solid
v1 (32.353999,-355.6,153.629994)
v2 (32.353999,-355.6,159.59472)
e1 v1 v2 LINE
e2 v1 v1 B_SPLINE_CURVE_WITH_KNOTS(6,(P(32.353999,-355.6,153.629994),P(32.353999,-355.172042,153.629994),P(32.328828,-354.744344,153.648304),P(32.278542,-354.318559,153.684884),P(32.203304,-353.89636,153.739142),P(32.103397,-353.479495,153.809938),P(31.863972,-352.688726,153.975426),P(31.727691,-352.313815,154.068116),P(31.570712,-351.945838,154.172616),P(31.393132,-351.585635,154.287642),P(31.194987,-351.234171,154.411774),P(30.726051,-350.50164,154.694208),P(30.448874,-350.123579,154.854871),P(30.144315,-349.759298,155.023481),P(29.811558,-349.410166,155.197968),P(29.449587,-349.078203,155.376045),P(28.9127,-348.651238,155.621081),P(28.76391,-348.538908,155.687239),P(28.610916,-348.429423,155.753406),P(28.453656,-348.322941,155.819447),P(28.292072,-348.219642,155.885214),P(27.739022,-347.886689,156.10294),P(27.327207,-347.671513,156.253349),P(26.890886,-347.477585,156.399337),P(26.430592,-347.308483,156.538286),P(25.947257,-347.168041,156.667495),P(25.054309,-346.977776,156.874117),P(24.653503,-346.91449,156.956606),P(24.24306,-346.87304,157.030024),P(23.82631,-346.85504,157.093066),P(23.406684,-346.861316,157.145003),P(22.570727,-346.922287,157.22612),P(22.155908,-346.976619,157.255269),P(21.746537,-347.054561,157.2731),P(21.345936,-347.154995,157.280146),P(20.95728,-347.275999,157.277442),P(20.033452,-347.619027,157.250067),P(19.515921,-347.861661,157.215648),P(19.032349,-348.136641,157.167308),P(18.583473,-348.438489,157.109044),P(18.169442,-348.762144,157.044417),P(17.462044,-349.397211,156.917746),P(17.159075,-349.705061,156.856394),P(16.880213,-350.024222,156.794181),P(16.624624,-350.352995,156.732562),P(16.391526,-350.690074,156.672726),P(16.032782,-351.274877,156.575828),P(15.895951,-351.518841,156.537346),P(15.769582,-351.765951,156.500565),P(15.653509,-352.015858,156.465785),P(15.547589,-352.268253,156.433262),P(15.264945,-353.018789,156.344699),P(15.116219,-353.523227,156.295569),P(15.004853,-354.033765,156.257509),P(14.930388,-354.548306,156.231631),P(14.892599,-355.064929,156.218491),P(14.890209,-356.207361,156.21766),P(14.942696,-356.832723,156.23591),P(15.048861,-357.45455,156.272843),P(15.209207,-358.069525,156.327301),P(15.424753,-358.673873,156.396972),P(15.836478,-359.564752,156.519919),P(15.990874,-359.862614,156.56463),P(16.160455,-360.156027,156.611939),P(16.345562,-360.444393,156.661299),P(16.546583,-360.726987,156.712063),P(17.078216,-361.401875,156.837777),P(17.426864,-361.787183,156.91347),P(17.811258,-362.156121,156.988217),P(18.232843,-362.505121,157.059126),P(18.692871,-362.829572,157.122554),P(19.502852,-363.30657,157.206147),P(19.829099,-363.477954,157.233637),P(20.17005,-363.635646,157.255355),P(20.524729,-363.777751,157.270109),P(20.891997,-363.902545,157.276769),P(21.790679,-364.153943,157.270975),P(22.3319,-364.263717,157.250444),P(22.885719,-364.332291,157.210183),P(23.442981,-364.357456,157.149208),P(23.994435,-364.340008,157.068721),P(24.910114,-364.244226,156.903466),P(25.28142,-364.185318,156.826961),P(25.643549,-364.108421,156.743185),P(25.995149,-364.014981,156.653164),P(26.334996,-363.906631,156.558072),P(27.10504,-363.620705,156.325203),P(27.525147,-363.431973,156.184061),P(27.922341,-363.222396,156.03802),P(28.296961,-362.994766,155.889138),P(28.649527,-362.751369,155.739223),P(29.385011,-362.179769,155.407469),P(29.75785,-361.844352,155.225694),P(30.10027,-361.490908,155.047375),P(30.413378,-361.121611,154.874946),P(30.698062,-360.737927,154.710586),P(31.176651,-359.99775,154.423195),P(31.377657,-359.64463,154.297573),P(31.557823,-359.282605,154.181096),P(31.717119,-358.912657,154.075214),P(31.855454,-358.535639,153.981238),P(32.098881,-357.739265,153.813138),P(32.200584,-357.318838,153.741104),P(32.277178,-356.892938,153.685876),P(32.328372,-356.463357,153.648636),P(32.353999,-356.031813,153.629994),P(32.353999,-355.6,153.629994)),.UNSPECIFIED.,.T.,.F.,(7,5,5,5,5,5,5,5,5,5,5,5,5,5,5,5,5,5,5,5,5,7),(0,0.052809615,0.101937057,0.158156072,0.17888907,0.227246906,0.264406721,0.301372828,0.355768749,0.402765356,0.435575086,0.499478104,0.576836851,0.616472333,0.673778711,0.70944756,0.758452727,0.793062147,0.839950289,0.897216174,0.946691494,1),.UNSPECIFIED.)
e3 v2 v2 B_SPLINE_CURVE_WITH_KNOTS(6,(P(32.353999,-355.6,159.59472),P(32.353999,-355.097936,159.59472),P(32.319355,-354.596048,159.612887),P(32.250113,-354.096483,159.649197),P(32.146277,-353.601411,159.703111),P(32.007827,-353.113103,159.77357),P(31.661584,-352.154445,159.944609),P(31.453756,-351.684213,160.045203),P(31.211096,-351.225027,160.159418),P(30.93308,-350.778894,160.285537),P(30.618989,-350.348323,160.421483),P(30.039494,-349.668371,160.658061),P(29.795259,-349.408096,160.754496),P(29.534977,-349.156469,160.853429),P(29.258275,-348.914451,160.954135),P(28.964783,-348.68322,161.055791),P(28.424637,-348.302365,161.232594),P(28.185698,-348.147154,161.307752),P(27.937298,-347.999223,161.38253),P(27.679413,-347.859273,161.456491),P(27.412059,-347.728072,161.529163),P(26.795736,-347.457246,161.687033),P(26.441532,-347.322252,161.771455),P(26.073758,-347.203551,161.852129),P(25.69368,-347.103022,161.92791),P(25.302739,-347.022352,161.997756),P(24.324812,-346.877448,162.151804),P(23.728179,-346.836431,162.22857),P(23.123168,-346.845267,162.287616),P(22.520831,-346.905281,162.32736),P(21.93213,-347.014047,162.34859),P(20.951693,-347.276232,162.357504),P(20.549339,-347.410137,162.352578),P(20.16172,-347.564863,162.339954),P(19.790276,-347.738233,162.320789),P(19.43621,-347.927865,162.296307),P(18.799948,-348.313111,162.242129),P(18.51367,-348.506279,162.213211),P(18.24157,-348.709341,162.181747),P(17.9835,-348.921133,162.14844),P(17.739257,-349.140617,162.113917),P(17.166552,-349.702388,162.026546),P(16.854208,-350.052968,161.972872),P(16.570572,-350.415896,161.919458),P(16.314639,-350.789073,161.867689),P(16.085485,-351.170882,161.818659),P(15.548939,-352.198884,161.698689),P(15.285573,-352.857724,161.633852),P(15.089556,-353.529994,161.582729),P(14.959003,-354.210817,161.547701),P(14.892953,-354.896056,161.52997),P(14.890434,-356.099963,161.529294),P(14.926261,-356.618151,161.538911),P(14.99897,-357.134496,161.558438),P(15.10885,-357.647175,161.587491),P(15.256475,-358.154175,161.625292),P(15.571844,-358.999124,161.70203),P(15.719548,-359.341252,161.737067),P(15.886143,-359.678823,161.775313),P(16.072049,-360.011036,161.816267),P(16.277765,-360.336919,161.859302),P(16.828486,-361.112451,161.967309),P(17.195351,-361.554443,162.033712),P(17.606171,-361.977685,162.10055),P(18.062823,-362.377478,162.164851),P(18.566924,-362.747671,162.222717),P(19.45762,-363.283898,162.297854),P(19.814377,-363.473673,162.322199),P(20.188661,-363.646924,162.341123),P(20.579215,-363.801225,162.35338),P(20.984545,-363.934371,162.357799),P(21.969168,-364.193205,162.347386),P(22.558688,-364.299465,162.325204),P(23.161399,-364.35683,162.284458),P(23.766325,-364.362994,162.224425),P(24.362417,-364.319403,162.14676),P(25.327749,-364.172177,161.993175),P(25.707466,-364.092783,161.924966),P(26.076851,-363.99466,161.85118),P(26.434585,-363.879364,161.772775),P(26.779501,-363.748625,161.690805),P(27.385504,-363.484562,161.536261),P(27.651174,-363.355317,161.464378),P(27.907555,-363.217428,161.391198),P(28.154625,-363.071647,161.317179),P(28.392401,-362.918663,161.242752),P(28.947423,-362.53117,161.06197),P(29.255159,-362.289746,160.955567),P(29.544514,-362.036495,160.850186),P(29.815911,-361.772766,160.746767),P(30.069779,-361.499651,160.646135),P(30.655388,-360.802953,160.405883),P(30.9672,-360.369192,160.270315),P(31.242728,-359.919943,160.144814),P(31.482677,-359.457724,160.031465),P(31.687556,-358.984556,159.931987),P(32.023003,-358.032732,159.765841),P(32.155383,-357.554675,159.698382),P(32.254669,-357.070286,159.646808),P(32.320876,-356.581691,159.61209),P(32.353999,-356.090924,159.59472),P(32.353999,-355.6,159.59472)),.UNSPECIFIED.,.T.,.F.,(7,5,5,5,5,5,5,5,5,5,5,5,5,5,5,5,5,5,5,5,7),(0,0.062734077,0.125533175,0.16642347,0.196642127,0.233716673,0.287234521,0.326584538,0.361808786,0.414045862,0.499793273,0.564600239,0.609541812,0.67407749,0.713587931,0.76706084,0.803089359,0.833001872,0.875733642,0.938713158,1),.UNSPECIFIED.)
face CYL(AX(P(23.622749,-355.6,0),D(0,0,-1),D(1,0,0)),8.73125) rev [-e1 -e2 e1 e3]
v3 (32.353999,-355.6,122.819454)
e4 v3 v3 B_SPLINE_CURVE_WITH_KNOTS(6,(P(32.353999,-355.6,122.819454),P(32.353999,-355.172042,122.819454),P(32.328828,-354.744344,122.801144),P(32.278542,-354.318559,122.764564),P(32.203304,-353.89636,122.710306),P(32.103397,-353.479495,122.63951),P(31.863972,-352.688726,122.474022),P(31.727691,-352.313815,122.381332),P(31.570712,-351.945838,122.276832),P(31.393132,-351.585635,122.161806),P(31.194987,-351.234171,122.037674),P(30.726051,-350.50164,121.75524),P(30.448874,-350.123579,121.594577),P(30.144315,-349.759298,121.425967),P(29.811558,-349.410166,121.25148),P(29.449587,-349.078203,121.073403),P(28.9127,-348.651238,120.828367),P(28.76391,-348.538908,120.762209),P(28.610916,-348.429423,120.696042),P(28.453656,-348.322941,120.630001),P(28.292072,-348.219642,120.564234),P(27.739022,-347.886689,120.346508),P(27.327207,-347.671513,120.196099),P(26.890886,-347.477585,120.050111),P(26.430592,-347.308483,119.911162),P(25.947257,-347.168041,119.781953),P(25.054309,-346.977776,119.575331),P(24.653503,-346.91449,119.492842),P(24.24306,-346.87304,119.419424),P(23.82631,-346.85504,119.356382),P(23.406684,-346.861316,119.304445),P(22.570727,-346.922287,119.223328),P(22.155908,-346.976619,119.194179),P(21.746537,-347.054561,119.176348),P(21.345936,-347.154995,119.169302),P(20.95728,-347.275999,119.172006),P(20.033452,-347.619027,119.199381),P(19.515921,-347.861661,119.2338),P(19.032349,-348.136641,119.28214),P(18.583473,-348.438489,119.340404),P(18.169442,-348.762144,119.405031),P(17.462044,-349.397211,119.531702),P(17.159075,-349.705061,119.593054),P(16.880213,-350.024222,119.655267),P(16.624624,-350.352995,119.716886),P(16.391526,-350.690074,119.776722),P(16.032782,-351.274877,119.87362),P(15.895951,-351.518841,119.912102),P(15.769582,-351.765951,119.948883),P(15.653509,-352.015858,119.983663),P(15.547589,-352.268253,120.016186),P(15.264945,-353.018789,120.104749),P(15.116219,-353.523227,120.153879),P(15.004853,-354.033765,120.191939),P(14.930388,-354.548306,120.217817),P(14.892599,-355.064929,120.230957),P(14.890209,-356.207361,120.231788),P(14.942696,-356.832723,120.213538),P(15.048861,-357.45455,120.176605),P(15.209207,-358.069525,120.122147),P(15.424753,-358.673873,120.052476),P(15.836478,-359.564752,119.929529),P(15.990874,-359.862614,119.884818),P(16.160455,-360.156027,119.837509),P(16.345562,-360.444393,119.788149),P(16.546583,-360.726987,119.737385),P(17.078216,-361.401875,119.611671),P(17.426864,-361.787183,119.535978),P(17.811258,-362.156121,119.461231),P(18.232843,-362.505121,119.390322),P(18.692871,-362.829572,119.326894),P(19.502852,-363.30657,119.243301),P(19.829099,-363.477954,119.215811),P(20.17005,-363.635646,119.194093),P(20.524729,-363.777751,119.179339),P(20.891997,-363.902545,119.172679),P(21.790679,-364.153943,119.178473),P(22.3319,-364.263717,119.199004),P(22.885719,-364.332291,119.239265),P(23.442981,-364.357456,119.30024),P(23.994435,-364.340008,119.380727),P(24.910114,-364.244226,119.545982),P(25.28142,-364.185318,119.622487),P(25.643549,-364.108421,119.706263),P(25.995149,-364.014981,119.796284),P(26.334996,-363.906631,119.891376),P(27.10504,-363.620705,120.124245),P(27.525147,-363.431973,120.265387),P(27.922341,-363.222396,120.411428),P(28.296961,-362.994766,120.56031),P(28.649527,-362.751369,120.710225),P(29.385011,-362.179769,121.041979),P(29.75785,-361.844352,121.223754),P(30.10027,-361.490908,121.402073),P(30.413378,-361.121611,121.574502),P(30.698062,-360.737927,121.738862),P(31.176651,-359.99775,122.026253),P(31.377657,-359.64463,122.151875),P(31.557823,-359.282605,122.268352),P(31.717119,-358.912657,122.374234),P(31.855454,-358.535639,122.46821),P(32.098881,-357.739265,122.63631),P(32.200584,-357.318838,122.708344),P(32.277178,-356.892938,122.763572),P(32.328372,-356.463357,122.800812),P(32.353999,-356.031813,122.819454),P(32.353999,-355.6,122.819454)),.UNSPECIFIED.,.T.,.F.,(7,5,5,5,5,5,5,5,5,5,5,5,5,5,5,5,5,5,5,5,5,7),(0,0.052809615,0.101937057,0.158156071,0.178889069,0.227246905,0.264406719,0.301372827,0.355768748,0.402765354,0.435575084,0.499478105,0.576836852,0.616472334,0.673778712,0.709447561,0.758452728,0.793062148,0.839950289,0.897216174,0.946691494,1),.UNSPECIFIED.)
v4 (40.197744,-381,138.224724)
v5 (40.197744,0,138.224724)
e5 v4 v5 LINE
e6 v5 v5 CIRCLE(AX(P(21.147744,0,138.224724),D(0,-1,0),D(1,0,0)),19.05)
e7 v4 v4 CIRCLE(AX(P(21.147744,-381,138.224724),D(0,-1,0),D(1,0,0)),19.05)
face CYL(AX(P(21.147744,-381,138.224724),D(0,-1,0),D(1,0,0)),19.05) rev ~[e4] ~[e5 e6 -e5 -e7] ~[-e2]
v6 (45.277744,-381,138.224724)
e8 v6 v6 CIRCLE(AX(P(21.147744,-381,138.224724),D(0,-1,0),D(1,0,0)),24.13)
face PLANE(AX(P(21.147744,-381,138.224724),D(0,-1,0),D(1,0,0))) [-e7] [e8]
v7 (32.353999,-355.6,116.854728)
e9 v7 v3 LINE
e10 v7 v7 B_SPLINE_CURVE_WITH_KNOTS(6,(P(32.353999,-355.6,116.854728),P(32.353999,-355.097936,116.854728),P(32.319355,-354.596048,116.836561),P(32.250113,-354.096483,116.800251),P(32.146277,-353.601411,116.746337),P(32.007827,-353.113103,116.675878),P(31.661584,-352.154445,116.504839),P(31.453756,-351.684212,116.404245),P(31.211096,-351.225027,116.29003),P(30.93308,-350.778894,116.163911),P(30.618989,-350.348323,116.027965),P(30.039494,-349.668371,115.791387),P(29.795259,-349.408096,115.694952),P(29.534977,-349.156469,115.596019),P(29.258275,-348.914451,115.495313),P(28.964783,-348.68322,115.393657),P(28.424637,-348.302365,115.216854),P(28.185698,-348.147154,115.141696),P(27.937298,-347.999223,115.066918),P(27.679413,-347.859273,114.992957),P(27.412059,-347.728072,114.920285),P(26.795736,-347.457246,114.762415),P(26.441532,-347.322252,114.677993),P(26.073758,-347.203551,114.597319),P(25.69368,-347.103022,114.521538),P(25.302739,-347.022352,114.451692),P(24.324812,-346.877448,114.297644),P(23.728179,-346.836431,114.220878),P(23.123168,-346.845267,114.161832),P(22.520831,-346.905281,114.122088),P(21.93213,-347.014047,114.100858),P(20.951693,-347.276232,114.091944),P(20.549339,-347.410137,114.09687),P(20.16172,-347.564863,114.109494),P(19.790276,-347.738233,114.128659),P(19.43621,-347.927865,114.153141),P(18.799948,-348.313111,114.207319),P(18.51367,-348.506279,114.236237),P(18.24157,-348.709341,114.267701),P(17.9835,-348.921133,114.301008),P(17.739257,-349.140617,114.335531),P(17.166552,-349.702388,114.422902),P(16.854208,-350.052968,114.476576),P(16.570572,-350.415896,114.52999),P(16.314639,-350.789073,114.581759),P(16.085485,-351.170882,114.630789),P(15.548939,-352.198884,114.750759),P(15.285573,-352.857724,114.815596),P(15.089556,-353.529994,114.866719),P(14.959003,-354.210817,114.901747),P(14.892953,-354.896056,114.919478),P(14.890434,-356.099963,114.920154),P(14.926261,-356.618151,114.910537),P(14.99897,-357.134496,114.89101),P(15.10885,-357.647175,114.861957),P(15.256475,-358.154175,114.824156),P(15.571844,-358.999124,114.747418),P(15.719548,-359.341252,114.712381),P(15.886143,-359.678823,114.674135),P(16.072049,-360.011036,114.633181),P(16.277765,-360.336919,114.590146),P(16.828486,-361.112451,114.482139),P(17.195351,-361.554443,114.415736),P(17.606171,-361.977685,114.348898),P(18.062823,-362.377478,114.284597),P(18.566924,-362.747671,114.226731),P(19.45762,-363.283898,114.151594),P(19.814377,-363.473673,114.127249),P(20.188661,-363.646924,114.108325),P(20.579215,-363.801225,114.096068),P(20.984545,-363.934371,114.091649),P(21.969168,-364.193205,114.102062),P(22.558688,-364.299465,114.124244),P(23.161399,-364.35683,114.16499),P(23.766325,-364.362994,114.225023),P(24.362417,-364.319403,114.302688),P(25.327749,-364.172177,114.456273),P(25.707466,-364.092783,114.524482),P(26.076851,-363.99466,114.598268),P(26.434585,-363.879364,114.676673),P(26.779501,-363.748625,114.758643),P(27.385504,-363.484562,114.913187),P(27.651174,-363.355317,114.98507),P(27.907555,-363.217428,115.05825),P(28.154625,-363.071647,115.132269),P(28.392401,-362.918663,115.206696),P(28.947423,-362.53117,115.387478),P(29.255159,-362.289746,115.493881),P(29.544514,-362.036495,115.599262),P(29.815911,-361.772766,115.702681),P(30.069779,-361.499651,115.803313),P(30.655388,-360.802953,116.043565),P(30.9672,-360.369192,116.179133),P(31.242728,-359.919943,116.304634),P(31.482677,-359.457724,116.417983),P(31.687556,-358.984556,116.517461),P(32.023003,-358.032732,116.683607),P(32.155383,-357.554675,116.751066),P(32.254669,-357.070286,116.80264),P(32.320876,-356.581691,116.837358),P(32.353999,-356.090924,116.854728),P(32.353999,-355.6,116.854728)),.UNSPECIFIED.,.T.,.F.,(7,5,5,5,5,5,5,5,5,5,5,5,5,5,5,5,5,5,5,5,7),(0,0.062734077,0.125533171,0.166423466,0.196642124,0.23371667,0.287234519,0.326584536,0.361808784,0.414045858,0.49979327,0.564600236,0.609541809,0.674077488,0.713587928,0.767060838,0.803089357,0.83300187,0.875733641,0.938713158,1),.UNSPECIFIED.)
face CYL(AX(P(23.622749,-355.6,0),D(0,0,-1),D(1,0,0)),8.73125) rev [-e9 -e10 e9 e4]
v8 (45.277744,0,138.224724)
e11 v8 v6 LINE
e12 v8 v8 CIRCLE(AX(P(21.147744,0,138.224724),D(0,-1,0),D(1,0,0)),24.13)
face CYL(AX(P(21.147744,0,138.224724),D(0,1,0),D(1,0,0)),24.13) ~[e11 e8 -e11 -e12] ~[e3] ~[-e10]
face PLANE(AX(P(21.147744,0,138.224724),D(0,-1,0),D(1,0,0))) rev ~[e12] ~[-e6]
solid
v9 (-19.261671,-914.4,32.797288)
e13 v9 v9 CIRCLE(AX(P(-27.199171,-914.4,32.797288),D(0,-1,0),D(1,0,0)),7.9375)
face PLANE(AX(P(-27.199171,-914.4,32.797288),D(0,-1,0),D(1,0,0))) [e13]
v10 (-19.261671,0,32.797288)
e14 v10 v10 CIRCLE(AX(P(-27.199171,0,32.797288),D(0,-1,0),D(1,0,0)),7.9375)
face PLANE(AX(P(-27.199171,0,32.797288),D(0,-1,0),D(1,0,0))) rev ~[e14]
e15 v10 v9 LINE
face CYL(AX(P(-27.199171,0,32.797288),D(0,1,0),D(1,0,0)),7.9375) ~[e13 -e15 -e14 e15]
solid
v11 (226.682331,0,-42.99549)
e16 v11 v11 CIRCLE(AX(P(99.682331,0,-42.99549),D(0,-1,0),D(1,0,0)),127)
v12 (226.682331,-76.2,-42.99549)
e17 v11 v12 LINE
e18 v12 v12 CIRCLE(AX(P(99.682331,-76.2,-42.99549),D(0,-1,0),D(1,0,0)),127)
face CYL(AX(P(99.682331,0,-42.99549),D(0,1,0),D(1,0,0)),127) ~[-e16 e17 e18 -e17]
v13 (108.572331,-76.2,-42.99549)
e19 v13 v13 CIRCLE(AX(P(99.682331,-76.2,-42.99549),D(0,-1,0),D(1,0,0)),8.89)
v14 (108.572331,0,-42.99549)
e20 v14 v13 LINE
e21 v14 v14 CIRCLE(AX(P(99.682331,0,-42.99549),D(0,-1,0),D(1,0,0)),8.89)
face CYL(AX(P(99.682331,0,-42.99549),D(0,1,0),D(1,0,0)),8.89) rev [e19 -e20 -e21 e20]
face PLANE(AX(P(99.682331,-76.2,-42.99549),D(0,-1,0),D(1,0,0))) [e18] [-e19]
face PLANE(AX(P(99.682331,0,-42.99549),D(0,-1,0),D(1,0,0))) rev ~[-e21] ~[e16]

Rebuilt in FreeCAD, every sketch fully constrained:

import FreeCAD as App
import Part
import Sketcher
Q = App.Units.Quantity

doc = App.newDocument("Part")
params = doc.addObject("Spreadsheet::Sheet", "Params")
for row, (alias, value) in enumerate([
    ("sketch1_diameter", "0.625 in"),
    ("pad1_length", "36 in"),
    ("sketch2_diameter", "10 in"),
    ("sketch2_diameter2", "0.7 in"),
    ("pad2_length", "3 in"),
    ("sketch3_diameter", "1.9 in"),
    ("pad3_length", "15 in"),
    ("sketch4_diameter", "1.5 in"),
    ("sketch5_diameter", "0.6875 in"),
    ("pocket2_length", "10 in"),
], start=1):
    params.set(f"A{row}", alias)
    params.set(f"B{row}", "=" + value)
    params.setAlias(f"B{row}", alias)

body = doc.addObject("PartDesign::Body", "Body")

# Sketch on XZ plane
sketch1 = body.newObject("Sketcher::SketchObject", "Sketch")
sketch1.AttachmentSupport = (doc.getObject("XZ_Plane"), [""])
sketch1.MapMode = "FlatFace"
sketch1.addGeometry(Part.Circle(App.Vector(-27.199171, 32.797288, 0), App.Vector(0, 0, 1), 7.9375), False)
sketch1.addConstraint(Sketcher.Constraint("Diameter", 0, Q("0.625 in")))
sketch1.addConstraint(Sketcher.Constraint("DistanceX", 0, 3, -1, 1, Q("27.199171 mm")))
sketch1.addConstraint(Sketcher.Constraint("DistanceY", -1, 1, 0, 3, Q("32.797288 mm")))
sketch1.setExpression("Constraints[0]", "Params.sketch1_diameter")
pad1 = body.newObject("PartDesign::Pad", "Pad")
pad1.Profile = sketch1
pad1.setExpression("Length", "Params.pad1_length")
body2 = doc.addObject("PartDesign::Body", "Body001")

# Sketch on XZ plane
sketch2 = body2.newObject("Sketcher::SketchObject", "Sketch001")
sketch2.AttachmentSupport = (doc.getObject("XZ_Plane001"), [""])
sketch2.MapMode = "FlatFace"
sketch2.addGeometry(Part.Circle(App.Vector(99.682331, -42.99549, 0), App.Vector(0, 0, 1), 127), False)
sketch2.addGeometry(Part.Circle(App.Vector(99.682331, -42.99549, 0), App.Vector(0, 0, 1), 8.89), False)
sketch2.addConstraint(Sketcher.Constraint("Coincident", 1, 3, 0, 3))
sketch2.addConstraint(Sketcher.Constraint("Diameter", 0, Q("10 in")))
sketch2.addConstraint(Sketcher.Constraint("Diameter", 1, Q("0.7 in")))
sketch2.addConstraint(Sketcher.Constraint("DistanceX", -1, 1, 0, 3, Q("99.682331 mm")))
sketch2.addConstraint(Sketcher.Constraint("DistanceY", 0, 3, -1, 1, Q("42.99549 mm")))
sketch2.setExpression("Constraints[1]", "Params.sketch2_diameter")
sketch2.setExpression("Constraints[2]", "Params.sketch2_diameter2")
pad2 = body2.newObject("PartDesign::Pad", "Pad001")
pad2.Profile = sketch2
pad2.setExpression("Length", "Params.pad2_length")
body3 = doc.addObject("PartDesign::Body", "Body002")

# Sketch on XZ plane
sketch3 = body3.newObject("Sketcher::SketchObject", "Sketch002")
sketch3.AttachmentSupport = (doc.getObject("XZ_Plane002"), [""])
sketch3.MapMode = "FlatFace"
sketch3.addGeometry(Part.Circle(App.Vector(21.147744, 138.224724, 0), App.Vector(0, 0, 1), 24.13), False)
sketch3.addConstraint(Sketcher.Constraint("Diameter", 0, Q("1.9 in")))
sketch3.addConstraint(Sketcher.Constraint("DistanceX", -1, 1, 0, 3, Q("21.147744 mm")))
sketch3.addConstraint(Sketcher.Constraint("DistanceY", -1, 1, 0, 3, Q("138.224724 mm")))
sketch3.setExpression("Constraints[0]", "Params.sketch3_diameter")
pad3 = body3.newObject("PartDesign::Pad", "Pad002")
pad3.Profile = sketch3
pad3.setExpression("Length", "Params.pad3_length")

# Sketch on XZ plane
sketch4 = body3.newObject("Sketcher::SketchObject", "Sketch003")
sketch4.AttachmentSupport = (doc.getObject("XZ_Plane002"), [""])
sketch4.MapMode = "FlatFace"
sketch4.AttachmentOffset = App.Placement(App.Vector(0, 0, 15 * 25.4), App.Rotation())
sketch4.addGeometry(Part.Circle(App.Vector(21.147744, 138.224724, 0), App.Vector(0, 0, 1), 19.05), False)
sketch4.addConstraint(Sketcher.Constraint("Diameter", 0, Q("1.5 in")))
sketch4.addConstraint(Sketcher.Constraint("DistanceX", -1, 1, 0, 3, Q("21.147744 mm")))
sketch4.addConstraint(Sketcher.Constraint("DistanceY", -1, 1, 0, 3, Q("138.224724 mm")))
sketch4.setExpression("Constraints[0]", "Params.sketch4_diameter")
pocket1 = body3.newObject("PartDesign::Pocket", "Pocket")
pocket1.Profile = sketch4
pocket1.Type = "ThroughAll"

# Sketch on XY plane
sketch5 = body3.newObject("Sketcher::SketchObject", "Sketch004")
sketch5.AttachmentSupport = (doc.getObject("XY_Plane002"), [""])
sketch5.MapMode = "FlatFace"
sketch5.addGeometry(Part.Circle(App.Vector(23.622749, -355.6, 0), App.Vector(0, 0, 1), 8.73125), False)
sketch5.addConstraint(Sketcher.Constraint("Diameter", 0, Q("0.6875 in")))
sketch5.addConstraint(Sketcher.Constraint("DistanceY", 0, 3, -1, 1, Q("14 in")))
sketch5.addConstraint(Sketcher.Constraint("DistanceX", -1, 1, 0, 3, Q("23.622749 mm")))
sketch5.setExpression("Constraints[0]", "Params.sketch5_diameter")
pocket2 = body3.newObject("PartDesign::Pocket", "Pocket001")
pocket2.Profile = sketch5
pocket2.setExpression("Length", "Params.pocket2_length")
pocket2.Reversed = True

doc.recompute()
